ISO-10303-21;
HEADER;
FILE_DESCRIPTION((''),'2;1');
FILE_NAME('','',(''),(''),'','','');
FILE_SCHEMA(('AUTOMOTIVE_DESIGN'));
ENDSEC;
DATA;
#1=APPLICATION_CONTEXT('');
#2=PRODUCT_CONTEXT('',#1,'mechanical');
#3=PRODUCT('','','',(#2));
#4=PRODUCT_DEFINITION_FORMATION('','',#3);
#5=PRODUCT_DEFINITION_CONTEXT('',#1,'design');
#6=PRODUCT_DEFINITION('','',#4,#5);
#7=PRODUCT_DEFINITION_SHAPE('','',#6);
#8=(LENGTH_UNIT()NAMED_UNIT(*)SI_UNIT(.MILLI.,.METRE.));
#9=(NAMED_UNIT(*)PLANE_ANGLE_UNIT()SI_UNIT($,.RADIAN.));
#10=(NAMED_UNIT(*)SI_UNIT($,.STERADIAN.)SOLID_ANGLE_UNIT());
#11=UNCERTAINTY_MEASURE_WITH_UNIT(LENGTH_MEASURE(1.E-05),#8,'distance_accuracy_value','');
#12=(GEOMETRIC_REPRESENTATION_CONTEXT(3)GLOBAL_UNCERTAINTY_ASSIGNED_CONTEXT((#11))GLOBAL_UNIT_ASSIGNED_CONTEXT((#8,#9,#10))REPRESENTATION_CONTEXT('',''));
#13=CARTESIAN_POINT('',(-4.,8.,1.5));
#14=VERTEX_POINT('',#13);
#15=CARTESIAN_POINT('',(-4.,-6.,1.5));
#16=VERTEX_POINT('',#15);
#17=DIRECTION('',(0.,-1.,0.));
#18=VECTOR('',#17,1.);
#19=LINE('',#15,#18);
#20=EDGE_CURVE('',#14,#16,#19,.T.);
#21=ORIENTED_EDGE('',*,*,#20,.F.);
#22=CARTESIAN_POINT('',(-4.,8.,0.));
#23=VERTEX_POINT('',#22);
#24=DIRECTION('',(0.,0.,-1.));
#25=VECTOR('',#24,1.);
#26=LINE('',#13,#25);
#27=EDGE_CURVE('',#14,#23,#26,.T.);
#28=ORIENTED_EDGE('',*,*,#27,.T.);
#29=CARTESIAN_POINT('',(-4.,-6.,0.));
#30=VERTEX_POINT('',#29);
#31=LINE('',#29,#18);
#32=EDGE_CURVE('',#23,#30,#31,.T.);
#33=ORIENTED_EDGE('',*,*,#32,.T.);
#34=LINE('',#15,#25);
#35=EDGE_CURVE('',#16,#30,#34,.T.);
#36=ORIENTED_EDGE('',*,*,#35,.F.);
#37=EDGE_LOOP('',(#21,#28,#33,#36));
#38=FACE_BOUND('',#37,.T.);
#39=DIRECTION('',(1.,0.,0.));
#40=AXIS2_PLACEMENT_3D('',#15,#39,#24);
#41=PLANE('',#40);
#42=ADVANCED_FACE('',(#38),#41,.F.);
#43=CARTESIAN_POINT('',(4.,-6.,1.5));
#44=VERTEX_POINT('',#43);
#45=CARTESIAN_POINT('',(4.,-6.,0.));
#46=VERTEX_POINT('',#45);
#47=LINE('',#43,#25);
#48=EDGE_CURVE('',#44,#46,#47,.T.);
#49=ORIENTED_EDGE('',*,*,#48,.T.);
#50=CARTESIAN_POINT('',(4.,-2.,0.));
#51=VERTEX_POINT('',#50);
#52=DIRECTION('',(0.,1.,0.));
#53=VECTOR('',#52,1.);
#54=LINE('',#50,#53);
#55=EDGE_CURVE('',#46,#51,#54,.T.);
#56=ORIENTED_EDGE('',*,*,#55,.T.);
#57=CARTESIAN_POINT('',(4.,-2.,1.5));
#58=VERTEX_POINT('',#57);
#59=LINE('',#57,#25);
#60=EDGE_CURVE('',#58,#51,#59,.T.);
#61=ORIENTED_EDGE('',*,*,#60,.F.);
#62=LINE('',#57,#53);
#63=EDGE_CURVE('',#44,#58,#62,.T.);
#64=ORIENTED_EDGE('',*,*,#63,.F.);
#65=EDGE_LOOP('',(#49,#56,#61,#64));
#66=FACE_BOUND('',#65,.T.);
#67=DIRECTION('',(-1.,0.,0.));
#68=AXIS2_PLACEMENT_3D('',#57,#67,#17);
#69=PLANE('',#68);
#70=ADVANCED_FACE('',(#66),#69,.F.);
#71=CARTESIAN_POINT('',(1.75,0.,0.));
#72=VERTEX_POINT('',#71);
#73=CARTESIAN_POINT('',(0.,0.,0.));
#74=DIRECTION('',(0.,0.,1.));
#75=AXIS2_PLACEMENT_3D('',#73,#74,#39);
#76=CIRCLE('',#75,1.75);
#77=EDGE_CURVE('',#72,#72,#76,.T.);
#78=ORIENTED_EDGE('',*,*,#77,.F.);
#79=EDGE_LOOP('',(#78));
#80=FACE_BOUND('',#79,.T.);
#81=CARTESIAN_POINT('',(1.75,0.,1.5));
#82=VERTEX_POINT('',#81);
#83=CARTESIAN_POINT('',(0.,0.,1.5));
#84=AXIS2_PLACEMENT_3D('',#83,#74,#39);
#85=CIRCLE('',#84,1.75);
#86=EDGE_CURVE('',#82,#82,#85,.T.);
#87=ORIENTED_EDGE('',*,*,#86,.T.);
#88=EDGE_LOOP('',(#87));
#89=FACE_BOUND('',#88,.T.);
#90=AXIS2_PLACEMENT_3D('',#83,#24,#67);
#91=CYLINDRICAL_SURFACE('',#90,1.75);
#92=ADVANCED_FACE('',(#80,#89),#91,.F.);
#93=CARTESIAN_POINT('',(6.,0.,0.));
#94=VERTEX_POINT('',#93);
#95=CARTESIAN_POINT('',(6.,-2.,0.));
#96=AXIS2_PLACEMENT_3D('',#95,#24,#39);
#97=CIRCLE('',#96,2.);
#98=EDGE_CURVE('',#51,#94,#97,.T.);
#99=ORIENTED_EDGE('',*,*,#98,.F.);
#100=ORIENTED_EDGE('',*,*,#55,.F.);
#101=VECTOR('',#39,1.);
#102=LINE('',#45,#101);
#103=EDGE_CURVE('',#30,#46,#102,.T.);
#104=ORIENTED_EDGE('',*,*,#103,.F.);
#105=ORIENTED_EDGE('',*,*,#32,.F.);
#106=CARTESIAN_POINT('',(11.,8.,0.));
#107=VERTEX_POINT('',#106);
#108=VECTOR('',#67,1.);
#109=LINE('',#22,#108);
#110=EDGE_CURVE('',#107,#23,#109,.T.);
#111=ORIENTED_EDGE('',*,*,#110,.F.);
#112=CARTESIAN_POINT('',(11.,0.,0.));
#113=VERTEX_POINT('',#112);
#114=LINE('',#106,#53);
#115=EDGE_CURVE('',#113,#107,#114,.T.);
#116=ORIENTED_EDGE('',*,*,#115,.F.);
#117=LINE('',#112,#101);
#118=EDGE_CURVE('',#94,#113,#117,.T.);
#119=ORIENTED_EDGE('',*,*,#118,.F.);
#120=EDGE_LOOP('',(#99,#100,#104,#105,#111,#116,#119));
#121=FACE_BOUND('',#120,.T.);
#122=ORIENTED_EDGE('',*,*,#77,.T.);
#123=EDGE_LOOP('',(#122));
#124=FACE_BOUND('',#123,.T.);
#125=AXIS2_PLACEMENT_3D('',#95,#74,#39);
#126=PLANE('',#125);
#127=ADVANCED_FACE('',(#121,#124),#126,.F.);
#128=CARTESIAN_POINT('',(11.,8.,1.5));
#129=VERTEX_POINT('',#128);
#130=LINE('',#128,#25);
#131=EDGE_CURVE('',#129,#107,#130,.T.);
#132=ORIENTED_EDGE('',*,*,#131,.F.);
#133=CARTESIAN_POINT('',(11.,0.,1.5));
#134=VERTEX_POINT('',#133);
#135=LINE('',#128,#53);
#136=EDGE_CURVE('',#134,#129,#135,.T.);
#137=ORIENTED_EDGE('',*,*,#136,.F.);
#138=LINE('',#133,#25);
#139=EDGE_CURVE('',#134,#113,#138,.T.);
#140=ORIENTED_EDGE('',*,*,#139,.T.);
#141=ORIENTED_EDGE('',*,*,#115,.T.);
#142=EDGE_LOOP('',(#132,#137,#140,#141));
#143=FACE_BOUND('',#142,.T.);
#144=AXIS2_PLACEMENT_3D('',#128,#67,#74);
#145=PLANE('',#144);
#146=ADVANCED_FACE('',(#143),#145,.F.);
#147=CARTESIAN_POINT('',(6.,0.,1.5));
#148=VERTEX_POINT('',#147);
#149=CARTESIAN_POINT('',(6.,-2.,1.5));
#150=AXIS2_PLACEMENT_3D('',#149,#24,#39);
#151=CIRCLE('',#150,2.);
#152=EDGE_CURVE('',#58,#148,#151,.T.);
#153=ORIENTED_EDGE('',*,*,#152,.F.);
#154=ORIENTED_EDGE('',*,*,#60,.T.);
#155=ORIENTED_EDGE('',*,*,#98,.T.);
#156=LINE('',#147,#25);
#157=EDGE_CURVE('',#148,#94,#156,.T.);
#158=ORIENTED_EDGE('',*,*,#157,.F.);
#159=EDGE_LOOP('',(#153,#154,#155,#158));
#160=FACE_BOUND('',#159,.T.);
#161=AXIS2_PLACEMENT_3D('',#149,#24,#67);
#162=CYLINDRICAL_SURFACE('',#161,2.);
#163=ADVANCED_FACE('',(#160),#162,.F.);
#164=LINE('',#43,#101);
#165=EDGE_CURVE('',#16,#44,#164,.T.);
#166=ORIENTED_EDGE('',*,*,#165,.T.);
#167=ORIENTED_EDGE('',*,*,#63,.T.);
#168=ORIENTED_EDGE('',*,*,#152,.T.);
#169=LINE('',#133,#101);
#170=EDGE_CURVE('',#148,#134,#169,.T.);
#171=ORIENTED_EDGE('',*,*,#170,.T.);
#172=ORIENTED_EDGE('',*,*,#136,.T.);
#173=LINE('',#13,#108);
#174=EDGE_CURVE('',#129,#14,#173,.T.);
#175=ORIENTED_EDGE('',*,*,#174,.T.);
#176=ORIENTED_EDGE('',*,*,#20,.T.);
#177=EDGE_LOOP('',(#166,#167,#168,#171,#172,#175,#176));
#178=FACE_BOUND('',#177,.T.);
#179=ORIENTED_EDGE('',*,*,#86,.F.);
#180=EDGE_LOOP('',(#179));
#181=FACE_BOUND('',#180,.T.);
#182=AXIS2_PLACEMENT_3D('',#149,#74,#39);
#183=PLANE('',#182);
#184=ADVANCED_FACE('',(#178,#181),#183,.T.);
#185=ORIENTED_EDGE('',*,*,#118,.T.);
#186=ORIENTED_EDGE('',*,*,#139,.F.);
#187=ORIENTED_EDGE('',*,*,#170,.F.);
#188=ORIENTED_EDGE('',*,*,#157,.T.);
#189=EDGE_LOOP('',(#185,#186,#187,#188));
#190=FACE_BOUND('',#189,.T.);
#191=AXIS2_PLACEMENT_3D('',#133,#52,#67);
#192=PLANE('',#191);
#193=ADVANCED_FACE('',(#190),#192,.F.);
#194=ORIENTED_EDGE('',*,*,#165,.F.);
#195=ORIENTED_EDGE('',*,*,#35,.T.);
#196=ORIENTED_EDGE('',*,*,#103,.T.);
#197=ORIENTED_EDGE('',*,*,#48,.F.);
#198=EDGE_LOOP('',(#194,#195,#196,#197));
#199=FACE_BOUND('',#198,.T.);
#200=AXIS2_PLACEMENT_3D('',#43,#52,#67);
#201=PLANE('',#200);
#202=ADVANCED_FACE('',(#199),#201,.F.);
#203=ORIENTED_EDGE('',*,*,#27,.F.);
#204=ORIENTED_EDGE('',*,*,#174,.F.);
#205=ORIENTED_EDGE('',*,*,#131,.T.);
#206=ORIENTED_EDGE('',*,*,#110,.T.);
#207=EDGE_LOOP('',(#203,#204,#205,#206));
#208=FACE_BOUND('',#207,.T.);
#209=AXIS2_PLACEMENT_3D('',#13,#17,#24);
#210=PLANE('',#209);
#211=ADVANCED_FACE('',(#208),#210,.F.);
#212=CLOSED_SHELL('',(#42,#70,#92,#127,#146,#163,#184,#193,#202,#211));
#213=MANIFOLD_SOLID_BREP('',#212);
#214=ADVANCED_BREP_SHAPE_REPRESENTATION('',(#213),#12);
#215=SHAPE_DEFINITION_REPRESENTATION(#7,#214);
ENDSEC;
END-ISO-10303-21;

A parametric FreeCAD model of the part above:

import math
import FreeCAD as App
import Part
import Sketcher
Q = App.Units.Quantity

doc = App.newDocument("Part")
body = doc.addObject("PartDesign::Body", "Body")

# Sketch on XY plane
sketch1 = body.newObject("Sketcher::SketchObject", "Sketch")
sketch1.AttachmentSupport = (doc.getObject("XY_Plane"), [""])
sketch1.MapMode = "FlatFace"
sketch1.addGeometry([
    Part.LineSegment(App.Vector(-4, -6, 0), App.Vector(4, -6, 0)),  # 0
    Part.LineSegment(App.Vector(4, -6, 0), App.Vector(4, -2, 0)),  # 1
    Part.ArcOfCircle(Part.Circle(App.Vector(6, -2, 0), App.Vector(0, 0, 1), 2), math.radians(90), math.radians(180)),  # 2
    Part.LineSegment(App.Vector(6, 0, 0), App.Vector(11, 0, 0)),  # 3
    Part.LineSegment(App.Vector(11, 0, 0), App.Vector(11, 8, 0)),  # 4
    Part.LineSegment(App.Vector(11, 8, 0), App.Vector(-4, 8, 0)),  # 5
    Part.LineSegment(App.Vector(-4, 8, 0), App.Vector(-4, -6, 0)),  # 6
    Part.Circle(App.Vector(0, 0, 0), App.Vector(0, 0, 1), 1.8),  # 7
], False)
sketch1.addConstraint([
    Sketcher.Constraint("Coincident", 0, 2, 1, 1),
    Sketcher.Constraint("Tangent", 1, 2, 2, 2),
    Sketcher.Constraint("Tangent", 2, 1, 3, 1),
    Sketcher.Constraint("Coincident", 3, 2, 4, 1),
    Sketcher.Constraint("Coincident", 4, 2, 5, 1),
    Sketcher.Constraint("Coincident", 5, 2, 6, 1),
    Sketcher.Constraint("Coincident", 6, 2, 0, 1),
    Sketcher.Constraint("Horizontal", 0),
    Sketcher.Constraint("Vertical", 1),
    Sketcher.Constraint("Horizontal", 3),
    Sketcher.Constraint("Vertical", 4),
    Sketcher.Constraint("Horizontal", 5),
    Sketcher.Constraint("Vertical", 6),
    Sketcher.Constraint("Coincident", 7, 3, -1, 1),
    Sketcher.Constraint("PointOnObject", 2, 1, -1),
    Sketcher.Constraint("Equal", 0, 4),
    Sketcher.Constraint("Radius", 2, Q("2 mm")),
    Sketcher.Constraint("Diameter", 7, Q("3.5 mm")),
    Sketcher.Constraint("DistanceX", 0, 1, 0, 2, Q("8 mm")),
    Sketcher.Constraint("DistanceX", 3, 1, 3, 2, Q("5 mm")),
    Sketcher.Constraint("DistanceY", 1, 1, 1, 2, Q("4 mm")),
    Sketcher.Constraint("DistanceX", -1, 1, 2, 3, Q("6 mm")),
])
pad1 = body.newObject("PartDesign::Pad", "Pad")
pad1.Profile = sketch1
pad1.Length = 1.5

doc.recompute()
